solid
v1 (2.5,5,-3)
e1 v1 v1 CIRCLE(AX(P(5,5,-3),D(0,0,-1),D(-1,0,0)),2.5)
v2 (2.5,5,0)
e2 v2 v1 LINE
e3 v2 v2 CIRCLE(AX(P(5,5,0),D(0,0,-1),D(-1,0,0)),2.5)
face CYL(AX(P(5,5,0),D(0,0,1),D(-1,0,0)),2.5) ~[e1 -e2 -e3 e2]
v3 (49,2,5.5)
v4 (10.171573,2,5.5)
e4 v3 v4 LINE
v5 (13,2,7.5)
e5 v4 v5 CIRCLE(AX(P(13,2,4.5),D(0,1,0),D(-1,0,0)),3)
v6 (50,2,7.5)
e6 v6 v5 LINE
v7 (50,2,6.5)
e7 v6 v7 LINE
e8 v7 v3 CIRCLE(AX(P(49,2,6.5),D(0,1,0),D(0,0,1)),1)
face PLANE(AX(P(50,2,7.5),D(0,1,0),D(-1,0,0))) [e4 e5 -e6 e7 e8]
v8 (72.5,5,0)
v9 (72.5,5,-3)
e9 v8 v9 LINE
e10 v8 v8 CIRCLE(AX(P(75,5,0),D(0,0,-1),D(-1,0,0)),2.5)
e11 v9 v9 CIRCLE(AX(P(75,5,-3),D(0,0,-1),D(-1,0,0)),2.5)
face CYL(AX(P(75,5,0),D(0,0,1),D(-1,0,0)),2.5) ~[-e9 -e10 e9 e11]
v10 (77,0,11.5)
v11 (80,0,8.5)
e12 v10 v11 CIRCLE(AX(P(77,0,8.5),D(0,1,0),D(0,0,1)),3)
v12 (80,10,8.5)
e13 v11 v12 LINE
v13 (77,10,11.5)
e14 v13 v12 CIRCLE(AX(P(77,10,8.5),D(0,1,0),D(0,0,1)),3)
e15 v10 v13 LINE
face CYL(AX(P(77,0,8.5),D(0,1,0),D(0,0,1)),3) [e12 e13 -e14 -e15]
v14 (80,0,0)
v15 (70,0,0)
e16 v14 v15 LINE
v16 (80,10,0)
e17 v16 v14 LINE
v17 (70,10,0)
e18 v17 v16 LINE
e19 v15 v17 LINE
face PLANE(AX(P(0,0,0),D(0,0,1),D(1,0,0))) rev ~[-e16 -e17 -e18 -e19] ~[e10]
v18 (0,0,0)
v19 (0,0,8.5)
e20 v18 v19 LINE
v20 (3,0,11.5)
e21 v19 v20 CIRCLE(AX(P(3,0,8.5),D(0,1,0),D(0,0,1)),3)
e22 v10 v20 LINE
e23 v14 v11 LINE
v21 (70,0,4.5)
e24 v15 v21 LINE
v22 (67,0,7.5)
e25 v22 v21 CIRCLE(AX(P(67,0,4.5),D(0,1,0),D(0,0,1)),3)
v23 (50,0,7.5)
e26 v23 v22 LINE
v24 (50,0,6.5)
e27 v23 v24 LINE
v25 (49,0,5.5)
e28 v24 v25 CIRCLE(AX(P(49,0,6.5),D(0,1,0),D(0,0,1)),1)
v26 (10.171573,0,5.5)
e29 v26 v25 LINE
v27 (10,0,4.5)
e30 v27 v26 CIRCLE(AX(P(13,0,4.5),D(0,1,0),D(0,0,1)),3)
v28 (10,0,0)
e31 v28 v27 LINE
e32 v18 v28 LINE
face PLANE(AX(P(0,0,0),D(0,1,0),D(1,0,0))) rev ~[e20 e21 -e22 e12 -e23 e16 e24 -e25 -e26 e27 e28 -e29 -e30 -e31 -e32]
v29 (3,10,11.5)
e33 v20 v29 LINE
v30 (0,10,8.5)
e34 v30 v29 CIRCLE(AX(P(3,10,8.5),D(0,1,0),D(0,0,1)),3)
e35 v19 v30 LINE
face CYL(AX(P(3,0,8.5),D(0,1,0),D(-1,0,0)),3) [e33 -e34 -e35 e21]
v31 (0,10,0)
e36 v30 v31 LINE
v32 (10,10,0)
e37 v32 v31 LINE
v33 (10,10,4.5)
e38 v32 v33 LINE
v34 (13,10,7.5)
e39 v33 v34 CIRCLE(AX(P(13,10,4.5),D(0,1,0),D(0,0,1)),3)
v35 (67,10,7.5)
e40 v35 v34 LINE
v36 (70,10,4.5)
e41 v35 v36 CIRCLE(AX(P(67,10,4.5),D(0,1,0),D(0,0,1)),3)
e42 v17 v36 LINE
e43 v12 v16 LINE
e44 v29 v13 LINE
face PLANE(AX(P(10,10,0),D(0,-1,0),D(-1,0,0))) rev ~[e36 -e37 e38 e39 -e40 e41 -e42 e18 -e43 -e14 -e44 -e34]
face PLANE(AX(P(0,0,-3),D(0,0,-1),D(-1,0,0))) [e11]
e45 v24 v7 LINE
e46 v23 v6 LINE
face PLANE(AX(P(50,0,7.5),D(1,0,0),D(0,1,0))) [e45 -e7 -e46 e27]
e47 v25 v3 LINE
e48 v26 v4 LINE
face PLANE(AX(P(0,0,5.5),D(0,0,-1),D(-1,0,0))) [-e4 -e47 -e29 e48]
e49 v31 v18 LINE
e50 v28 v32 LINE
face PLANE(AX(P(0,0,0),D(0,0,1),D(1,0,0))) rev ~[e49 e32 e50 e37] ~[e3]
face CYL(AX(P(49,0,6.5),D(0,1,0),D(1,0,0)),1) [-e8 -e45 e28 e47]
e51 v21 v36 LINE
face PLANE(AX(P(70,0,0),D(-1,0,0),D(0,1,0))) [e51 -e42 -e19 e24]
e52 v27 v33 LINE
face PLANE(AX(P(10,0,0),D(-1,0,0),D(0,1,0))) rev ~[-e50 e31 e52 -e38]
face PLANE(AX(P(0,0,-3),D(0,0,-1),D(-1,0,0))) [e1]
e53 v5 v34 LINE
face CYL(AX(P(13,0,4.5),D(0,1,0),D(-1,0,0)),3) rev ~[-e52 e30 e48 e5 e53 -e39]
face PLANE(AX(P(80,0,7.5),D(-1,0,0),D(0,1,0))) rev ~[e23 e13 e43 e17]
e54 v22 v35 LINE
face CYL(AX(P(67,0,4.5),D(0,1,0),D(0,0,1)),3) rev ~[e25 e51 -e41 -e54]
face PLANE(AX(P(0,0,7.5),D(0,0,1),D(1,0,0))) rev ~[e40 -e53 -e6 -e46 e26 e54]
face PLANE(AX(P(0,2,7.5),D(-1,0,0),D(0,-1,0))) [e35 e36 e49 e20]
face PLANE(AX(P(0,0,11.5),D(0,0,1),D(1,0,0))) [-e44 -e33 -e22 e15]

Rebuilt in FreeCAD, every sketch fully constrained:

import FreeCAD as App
import Part
import Sketcher


def edges_at(feature, points):
    """Names of the edges that pass closest to the given points."""
    edges = feature.Shape.Edges
    near = lambda p: min(range(len(edges)), key=lambda i: edges[i].distToShape(Part.Vertex(*p))[0])
    return sorted({f"Edge{near(p) + 1}" for p in points})


def add_polygon(sketch, points):
    """Adds a closed chain of lines whose ends are joined by coincident constraints."""
    first, n = sketch.GeometryCount, len(points)
    for a, b in zip(points, points[1:] + points[:1]):
        sketch.addGeometry(Part.LineSegment(App.Vector(*a, 0), App.Vector(*b, 0)), False)
    for i in range(n):
        sketch.addConstraint(Sketcher.Constraint("Coincident", first + i, 2, first + (i + 1) % n, 1))

doc = App.newDocument("Part")
params = doc.addObject("Spreadsheet::Sheet", "Params")
for row, (alias, value) in enumerate([
    ("sketch1_width", "10 mm"),
    ("pad1_length", "7.5 mm"),
    ("sketch2_width", "80 mm"),
    ("sketch2_height", "10 mm"),
    ("pad2_length", "4 mm"),
    ("fillet_radius", "3 mm"),
    ("fillet2_radius", "3 mm"),
    ("fillet3_radius", "3 mm"),
    ("fillet4_radius", "3 mm"),
    ("sketch3_width", "50 mm"),
    ("sketch3_height", "2 mm"),
    ("pad3_length", "2 mm"),
    ("fillet5_radius", "1 mm"),
    ("sketch4_diameter", "5 mm"),
    ("pad4_length", "3 mm"),
    ("sketch5_diameter", "5 mm"),
    ("pad5_length", "3 mm"),
], start=1):
    params.set(f"A{row}", alias)
    params.set(f"B{row}", "=" + value)
    params.setAlias(f"B{row}", alias)

body = doc.addObject("PartDesign::Body", "Body")
body.AllowCompound = True

# Sketch on XY plane
sketch1 = body.newObject("Sketcher::SketchObject", "Sketch")
sketch1.AttachmentSupport = (doc.getObject("XY_Plane"), [""])
sketch1.MapMode = "FlatFace"
add_polygon(sketch1, [(0, 10), (0, 0), (10, 0), (10, 10)])  # lines 0-3
add_polygon(sketch1, [(80, 10), (70, 10), (70, 0), (80, 0)])  # lines 4-7
sketch1.addConstraint([
    Sketcher.Constraint("Vertical", 0),
    Sketcher.Constraint("Horizontal", 1),
    Sketcher.Constraint("Vertical", 2),
    Sketcher.Constraint("Horizontal", 3),
    Sketcher.Constraint("Horizontal", 4),
    Sketcher.Constraint("Vertical", 5),
    Sketcher.Constraint("Horizontal", 6),
    Sketcher.Constraint("Vertical", 7),
    Sketcher.Constraint("Coincident", 0, 2, -1, 1),
    Sketcher.Constraint("PointOnObject", 5, 2, -1),
    Sketcher.Constraint("Horizontal", 3, 2, 4, 2),
    Sketcher.Constraint("Equal", 3, 4),
    Sketcher.Constraint("Equal", 6, 0),
    Sketcher.Constraint("DistanceX", 1, 1, 1, 2, 10.0),
    Sketcher.Constraint("DistanceX", 2, 2, 4, 2, 60.0),
])
sketch1.setExpression("Constraints[21]", "Params.sketch1_width")
pad1 = body.newObject("PartDesign::Pad", "Pad")
pad1.Profile = sketch1
pad1.setExpression("Length", "Params.pad1_length")

# Sketch on XY plane
sketch2 = body.newObject("Sketcher::SketchObject", "Sketch001")
sketch2.AttachmentSupport = (doc.getObject("XY_Plane"), [""])
sketch2.MapMode = "FlatFace"
sketch2.AttachmentOffset = App.Placement(App.Vector(0, 0, 7.5), App.Rotation())
add_polygon(sketch2, [(80, 0), (80, 10), (0, 10), (0, 0)])  # lines 0-3
sketch2.addConstraint([
    Sketcher.Constraint("Vertical", 0),
    Sketcher.Constraint("Horizontal", 1),
    Sketcher.Constraint("Vertical", 2),
    Sketcher.Constraint("Horizontal", 3),
    Sketcher.Constraint("Coincident", 2, 2, -1, 1),
    Sketcher.Constraint("DistanceX", 1, 2, 1, 1, 80.0),
    Sketcher.Constraint("DistanceY", 0, 1, 0, 2, 10.0),
])
sketch2.setExpression("Constraints[9]", "Params.sketch2_width")
sketch2.setExpression("Constraints[10]", "Params.sketch2_height")
pad2 = body.newObject("PartDesign::Pad", "Pad001")
pad2.Profile = sketch2
pad2.setExpression("Length", "Params.pad2_length")
doc.recompute()

fillet = body.newObject("PartDesign::Fillet", "Fillet")
fillet.Base = (pad2, edges_at(pad2, [(0, 5, 11.5)]))
fillet.setExpression("Radius", "Params.fillet_radius")
doc.recompute()

fillet2 = body.newObject("PartDesign::Fillet", "Fillet001")
fillet2.Base = (fillet, edges_at(fillet, [(80, 5, 11.5)]))
fillet2.setExpression("Radius", "Params.fillet2_radius")
doc.recompute()

fillet3 = body.newObject("PartDesign::Fillet", "Fillet002")
fillet3.Base = (fillet2, edges_at(fillet2, [(70, 5, 7.5)]))
fillet3.setExpression("Radius", "Params.fillet3_radius")
doc.recompute()

fillet4 = body.newObject("PartDesign::Fillet", "Fillet003")
fillet4.Base = (fillet3, edges_at(fillet3, [(10, 5, 7.5)]))
fillet4.setExpression("Radius", "Params.fillet4_radius")

# Sketch on XY plane
sketch3 = body.newObject("Sketcher::SketchObject", "Sketch002")
sketch3.AttachmentSupport = (doc.getObject("XY_Plane"), [""])
sketch3.MapMode = "FlatFace"
sketch3.AttachmentOffset = App.Placement(App.Vector(0, 0, 7.5), App.Rotation())
add_polygon(sketch3, [(50, 0), (0, 0), (0, 2), (50, 2)])  # lines 0-3
sketch3.addConstraint([
    Sketcher.Constraint("Horizontal", 0),
    Sketcher.Constraint("Vertical", 1),
    Sketcher.Constraint("Horizontal", 2),
    Sketcher.Constraint("Vertical", 3),
    Sketcher.Constraint("Coincident", 0, 2, -1, 1),
    Sketcher.Constraint("DistanceX", 0, 2, 0, 1, 50.0),
    Sketcher.Constraint("DistanceY", 1, 1, 1, 2, 2.0),
])
sketch3.setExpression("Constraints[9]", "Params.sketch3_width")
sketch3.setExpression("Constraints[10]", "Params.sketch3_height")
pad3 = body.newObject("PartDesign::Pad", "Pad002")
pad3.Profile = sketch3
pad3.setExpression("Length", "Params.pad3_length")
pad3.Reversed = True
doc.recompute()

fillet5 = body.newObject("PartDesign::Fillet", "Fillet004")
fillet5.Base = (pad3, edges_at(pad3, [(50, 1, 5.5)]))
fillet5.setExpression("Radius", "Params.fillet5_radius")

# Sketch on XY plane
sketch4 = body.newObject("Sketcher::SketchObject", "Sketch003")
sketch4.AttachmentSupport = (doc.getObject("XY_Plane"), [""])
sketch4.MapMode = "FlatFace"
sketch4.addGeometry(Part.Circle(App.Vector(5, 5, 0), App.Vector(0, 0, 1), 2.5), False)
sketch4.addConstraint([
    Sketcher.Constraint("Diameter", 0, 5.0),
    Sketcher.Constraint("DistanceX", -1, 1, 0, 3, 5.0),
    Sketcher.Constraint("DistanceY", -1, 1, 0, 3, 5.0),
])
sketch4.setExpression("Constraints[0]", "Params.sketch4_diameter")
pad4 = body.newObject("PartDesign::Pad", "Pad003")
pad4.Profile = sketch4
pad4.setExpression("Length", "Params.pad4_length")
pad4.Reversed = True

# Sketch on XY plane
sketch5 = body.newObject("Sketcher::SketchObject", "Sketch004")
sketch5.AttachmentSupport = (doc.getObject("XY_Plane"), [""])
sketch5.MapMode = "FlatFace"
sketch5.addGeometry(Part.Circle(App.Vector(75, 5, 0), App.Vector(0, 0, 1), 2.5), False)
sketch5.addConstraint([
    Sketcher.Constraint("Diameter", 0, 5.0),
    Sketcher.Constraint("DistanceY", -1, 1, 0, 3, 5.0),
    Sketcher.Constraint("DistanceX", -1, 1, 0, 3, 75.0),
])
sketch5.setExpression("Constraints[0]", "Params.sketch5_diameter")
pad5 = body.newObject("PartDesign::Pad", "Pad004")
pad5.Profile = sketch5
pad5.setExpression("Length", "Params.pad5_length")
pad5.Reversed = True

doc.recompute()
